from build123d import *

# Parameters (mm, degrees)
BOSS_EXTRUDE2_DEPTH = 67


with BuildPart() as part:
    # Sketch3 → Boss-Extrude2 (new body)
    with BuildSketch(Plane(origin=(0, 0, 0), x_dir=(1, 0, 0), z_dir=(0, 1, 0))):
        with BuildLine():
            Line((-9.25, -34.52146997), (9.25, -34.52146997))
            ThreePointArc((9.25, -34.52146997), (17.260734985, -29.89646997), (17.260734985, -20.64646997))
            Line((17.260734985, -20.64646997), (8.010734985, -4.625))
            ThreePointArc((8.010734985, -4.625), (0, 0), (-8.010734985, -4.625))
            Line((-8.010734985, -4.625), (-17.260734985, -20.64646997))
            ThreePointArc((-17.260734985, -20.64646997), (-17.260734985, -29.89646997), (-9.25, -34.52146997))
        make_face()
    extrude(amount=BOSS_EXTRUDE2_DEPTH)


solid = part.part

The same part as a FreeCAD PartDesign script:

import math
import FreeCAD as App
import Part
import Sketcher
from FreeCAD import Vector
Q = App.Units.Quantity

doc = App.newDocument("Part")
body = doc.addObject("PartDesign::Body", "Body")

# Sketch on XZ plane
sketch1 = body.newObject("Sketcher::SketchObject", "Sketch")
sketch1.AttachmentSupport = (doc.getObject("XZ_Plane"), [""])
sketch1.MapMode = "FlatFace"
sketch1.addGeometry([
    Part.LineSegment(Vector(-9, 35, 0), Vector(9, 35, 0)),  # 0
    Part.ArcOfCircle(Part.Circle(Vector(9, 25, 0), Vector(0, 0, 1), 9), math.radians(-30), math.radians(90)),  # 1
    Part.LineSegment(Vector(17, 21, 0), Vector(8, 5, 0)),  # 2
    Part.ArcOfCircle(Part.Circle(Vector(0, 9, 0), Vector(0, 0, 1), 9), math.radians(-150), math.radians(-30)),  # 3
    Part.LineSegment(Vector(-8, 5, 0), Vector(-17, 21, 0)),  # 4
    Part.ArcOfCircle(Part.Circle(Vector(-9, 25, 0), Vector(0, 0, 1), 9), math.radians(90), math.radians(210)),  # 5
], False)
sketch1.addConstraint([
    Sketcher.Constraint("Tangent", 0, 2, 1, 2),
    Sketcher.Constraint("Tangent", 1, 1, 2, 1),
    Sketcher.Constraint("Tangent", 2, 2, 3, 2),
    Sketcher.Constraint("Tangent", 3, 1, 4, 1),
    Sketcher.Constraint("Tangent", 4, 2, 5, 2),
    Sketcher.Constraint("Tangent", 5, 1, 0, 1),
    Sketcher.Constraint("Horizontal", 0),
    Sketcher.Constraint("Equal", 1, 3),
    Sketcher.Constraint("Equal", 3, 5),
    Sketcher.Constraint("Symmetric", 2, 2, 3, 1, -2),
    Sketcher.Constraint("Angle", 2, Q("-120 deg")),
    Sketcher.Constraint("Radius", 1, Q("9.25 mm")),
    Sketcher.Constraint("DistanceX", 0, 1, 0, 2, Q("18.5 mm")),
    Sketcher.Constraint("DistanceY", -1, 1, 3, 3, Q("9.25 mm")),
])
pad1 = body.newObject("PartDesign::Pad", "Pad")
pad1.Profile = sketch1
pad1.Length = 67
pad1.Reversed = True

doc.recompute()
